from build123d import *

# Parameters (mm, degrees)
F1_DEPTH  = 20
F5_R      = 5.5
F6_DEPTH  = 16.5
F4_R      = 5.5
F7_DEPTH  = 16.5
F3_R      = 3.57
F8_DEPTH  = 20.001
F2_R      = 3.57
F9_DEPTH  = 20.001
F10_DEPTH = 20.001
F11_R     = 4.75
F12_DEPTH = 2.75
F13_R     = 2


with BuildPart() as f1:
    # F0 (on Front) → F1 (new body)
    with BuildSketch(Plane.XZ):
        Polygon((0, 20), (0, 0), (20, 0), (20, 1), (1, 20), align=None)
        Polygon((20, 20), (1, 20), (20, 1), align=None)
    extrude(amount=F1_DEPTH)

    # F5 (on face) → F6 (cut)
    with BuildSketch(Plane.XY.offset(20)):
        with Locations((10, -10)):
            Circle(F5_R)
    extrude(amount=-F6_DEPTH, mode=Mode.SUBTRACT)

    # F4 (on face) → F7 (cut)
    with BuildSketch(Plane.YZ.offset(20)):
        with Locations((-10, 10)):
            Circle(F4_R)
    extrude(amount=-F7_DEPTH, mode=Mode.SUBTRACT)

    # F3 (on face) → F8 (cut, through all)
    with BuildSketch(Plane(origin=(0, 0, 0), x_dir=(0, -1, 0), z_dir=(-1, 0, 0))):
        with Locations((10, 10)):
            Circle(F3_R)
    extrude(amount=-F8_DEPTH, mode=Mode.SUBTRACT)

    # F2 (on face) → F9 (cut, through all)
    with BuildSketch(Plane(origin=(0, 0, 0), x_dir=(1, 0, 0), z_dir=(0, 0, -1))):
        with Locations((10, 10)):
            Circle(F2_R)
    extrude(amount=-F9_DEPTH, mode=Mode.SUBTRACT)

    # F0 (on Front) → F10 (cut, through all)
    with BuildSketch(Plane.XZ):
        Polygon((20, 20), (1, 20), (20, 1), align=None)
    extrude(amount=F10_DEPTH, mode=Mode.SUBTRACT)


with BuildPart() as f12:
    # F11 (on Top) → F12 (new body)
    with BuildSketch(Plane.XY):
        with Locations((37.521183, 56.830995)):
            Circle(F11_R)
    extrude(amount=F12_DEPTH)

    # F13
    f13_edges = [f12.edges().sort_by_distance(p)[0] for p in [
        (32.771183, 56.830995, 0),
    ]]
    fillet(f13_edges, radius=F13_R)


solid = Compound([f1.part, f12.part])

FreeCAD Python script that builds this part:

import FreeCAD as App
import Part
import Sketcher
from FreeCAD import Vector


def edges_at(feature, points):
    """Names of the edges that pass closest to the given points."""
    edges = feature.Shape.Edges
    near = lambda p: min(range(len(edges)), key=lambda i: edges[i].distToShape(Part.Vertex(*p))[0])
    return sorted({f"Edge{near(p) + 1}" for p in points})


def add_polygon(sketch, points):
    """Adds a closed chain of lines whose ends are joined by coincident constraints."""
    first, n = sketch.GeometryCount, len(points)
    for a, b in zip(points, points[1:] + points[:1]):
        sketch.addGeometry(Part.LineSegment(App.Vector(*a, 0), App.Vector(*b, 0)), False)
    for i in range(n):
        sketch.addConstraint(Sketcher.Constraint("Coincident", first + i, 2, first + (i + 1) % n, 1))

doc = App.newDocument("Part")
params = doc.addObject("Spreadsheet::Sheet", "Params")
for row, (alias, value) in enumerate([
    ("sketch1_width", "20 mm"),
    ("pad1_length", "20 mm"),
    ("sketch2_diameter", "11 mm"),
    ("pocket1_length", "16.5 mm"),
    ("sketch3_diameter", "11 mm"),
    ("pocket2_length", "16.5 mm"),
    ("sketch4_diameter", "7.14 mm"),
    ("sketch5_diameter", "7.14 mm"),
    ("sketch6_width", "19 mm"),
    ("sketch7_diameter", "9.5 mm"),
    ("pad2_length", "2.75 mm"),
    ("fillet_radius", "2 mm"),
], start=1):
    params.set(f"A{row}", alias)
    params.set(f"B{row}", "=" + value)
    params.setAlias(f"B{row}", alias)

body = doc.addObject("PartDesign::Body", "Body")

sketch1 = body.newObject("Sketcher::SketchObject", "Sketch")
sketch1.AttachmentSupport = (doc.getObject("XZ_Plane"), [""])
sketch1.MapMode = "FlatFace"
add_polygon(sketch1, [(0, 20), (0, 0), (20, 0), (20, 20)])
sketch1.addConstraint(Sketcher.Constraint("Vertical", 0))
sketch1.addConstraint(Sketcher.Constraint("Horizontal", 1))
sketch1.addConstraint(Sketcher.Constraint("Vertical", 2))
sketch1.addConstraint(Sketcher.Constraint("Horizontal", 3))
sketch1.addConstraint(Sketcher.Constraint("Coincident", 0, 2, -1, 1))
sketch1.addConstraint(Sketcher.Constraint("Equal", 3, 0))
sketch1.addConstraint(Sketcher.Constraint("DistanceX", 1, 1, 1, 2, 20.0))
sketch1.setExpression("Constraints[10]", "Params.sketch1_width")
pad1 = body.newObject("PartDesign::Pad", "Pad")
pad1.Profile = sketch1
pad1.setExpression("Length", "Params.pad1_length")

sketch2 = body.newObject("Sketcher::SketchObject", "Sketch001")
sketch2.AttachmentSupport = (doc.getObject("XY_Plane"), [""])
sketch2.MapMode = "FlatFace"
sketch2.AttachmentOffset = App.Placement(Vector(0, 0, 20), App.Rotation())
sketch2.addGeometry(Part.Circle(Vector(10, -10, 0), Vector(0, 0, 1), 6), False)
sketch2.addConstraint(Sketcher.Constraint("Diameter", 0, 11.0))
sketch2.addConstraint(Sketcher.Constraint("DistanceX", -1, 1, 0, 3, 10.0))
sketch2.addConstraint(Sketcher.Constraint("DistanceY", 0, 3, -1, 1, 10.0))
sketch2.setExpression("Constraints[0]", "Params.sketch2_diameter")
pocket1 = body.newObject("PartDesign::Pocket", "Pocket")
pocket1.Profile = sketch2
pocket1.setExpression("Length", "Params.pocket1_length")

sketch3 = body.newObject("Sketcher::SketchObject", "Sketch002")
sketch3.AttachmentSupport = (doc.getObject("YZ_Plane"), [""])
sketch3.MapMode = "FlatFace"
sketch3.AttachmentOffset = App.Placement(Vector(0, 0, 20), App.Rotation())
sketch3.addGeometry(Part.Circle(Vector(-10, 10, 0), Vector(0, 0, 1), 6), False)
sketch3.addConstraint(Sketcher.Constraint("Diameter", 0, 11.0))
sketch3.addConstraint(Sketcher.Constraint("DistanceX", 0, 3, -1, 1, 10.0))
sketch3.addConstraint(Sketcher.Constraint("DistanceY", -1, 1, 0, 3, 10.0))
sketch3.setExpression("Constraints[0]", "Params.sketch3_diameter")
pocket2 = body.newObject("PartDesign::Pocket", "Pocket001")
pocket2.Profile = sketch3
pocket2.setExpression("Length", "Params.pocket2_length")

sketch4 = body.newObject("Sketcher::SketchObject", "Sketch003")
sketch4.AttachmentSupport = (doc.getObject("YZ_Plane"), [""])
sketch4.MapMode = "FlatFace"
sketch4.addGeometry(Part.Circle(Vector(-10, 10, 0), Vector(0, 0, 1), 3.6), False)
sketch4.addConstraint(Sketcher.Constraint("Diameter", 0, 7.14))
sketch4.addConstraint(Sketcher.Constraint("DistanceX", 0, 3, -1, 1, 10.0))
sketch4.addConstraint(Sketcher.Constraint("DistanceY", -1, 1, 0, 3, 10.0))
sketch4.setExpression("Constraints[0]", "Params.sketch4_diameter")
pocket3 = body.newObject("PartDesign::Pocket", "Pocket002")
pocket3.Profile = sketch4
pocket3.Type = "ThroughAll"
pocket3.Reversed = True

sketch5 = body.newObject("Sketcher::SketchObject", "Sketch004")
sketch5.AttachmentSupport = (doc.getObject("XY_Plane"), [""])
sketch5.MapMode = "FlatFace"
sketch5.addGeometry(Part.Circle(Vector(10, -10, 0), Vector(0, 0, 1), 3.6), False)
sketch5.addConstraint(Sketcher.Constraint("Diameter", 0, 7.14))
sketch5.addConstraint(Sketcher.Constraint("DistanceX", -1, 1, 0, 3, 10.0))
sketch5.addConstraint(Sketcher.Constraint("DistanceY", 0, 3, -1, 1, 10.0))
sketch5.setExpression("Constraints[0]", "Params.sketch5_diameter")
pocket4 = body.newObject("PartDesign::Pocket", "Pocket003")
pocket4.Profile = sketch5
pocket4.Type = "ThroughAll"
pocket4.Reversed = True

sketch6 = body.newObject("Sketcher::SketchObject", "Sketch005")
sketch6.AttachmentSupport = (doc.getObject("XZ_Plane"), [""])
sketch6.MapMode = "FlatFace"
add_polygon(sketch6, [(20, 20), (1, 20), (20, 1)])
sketch6.addConstraint(Sketcher.Constraint("Horizontal", 0))
sketch6.addConstraint(Sketcher.Constraint("Vertical", 2))
sketch6.addConstraint(Sketcher.Constraint("Equal", 0, 2))
sketch6.addConstraint(Sketcher.Constraint("DistanceX", 0, 2, 0, 1, 19.0))
sketch6.addConstraint(Sketcher.Constraint("DistanceX", -1, 1, 0, 2, 1.0))
sketch6.addConstraint(Sketcher.Constraint("DistanceY", -1, 1, 0, 2, 20.0))
sketch6.setExpression("Constraints[6]", "Params.sketch6_width")
pocket5 = body.newObject("PartDesign::Pocket", "Pocket004")
pocket5.Profile = sketch6
pocket5.Type = "ThroughAll"
pocket5.Reversed = True
body2 = doc.addObject("PartDesign::Body", "Body001")

sketch7 = body2.newObject("Sketcher::SketchObject", "Sketch006")
sketch7.AttachmentSupport = (doc.getObject("XY_Plane001"), [""])
sketch7.MapMode = "FlatFace"
sketch7.addGeometry(Part.Circle(Vector(37.5, 56.8, 0), Vector(0, 0, 1), 4.8), False)
sketch7.addConstraint(Sketcher.Constraint("Diameter", 0, 9.5))
sketch7.addConstraint(Sketcher.Constraint("DistanceX", -1, 1, 0, 3, 37.521183))
sketch7.addConstraint(Sketcher.Constraint("DistanceY", -1, 1, 0, 3, 56.830995))
sketch7.setExpression("Constraints[0]", "Params.sketch7_diameter")
pad2 = body2.newObject("PartDesign::Pad", "Pad001")
pad2.Profile = sketch7
pad2.setExpression("Length", "Params.pad2_length")
doc.recompute()

fillet = body2.newObject("PartDesign::Fillet", "Fillet")
fillet.Base = (pad2, edges_at(pad2, [(32.771, 56.831, 0)]))
fillet.setExpression("Radius", "Params.fillet_radius")

doc.recompute()
